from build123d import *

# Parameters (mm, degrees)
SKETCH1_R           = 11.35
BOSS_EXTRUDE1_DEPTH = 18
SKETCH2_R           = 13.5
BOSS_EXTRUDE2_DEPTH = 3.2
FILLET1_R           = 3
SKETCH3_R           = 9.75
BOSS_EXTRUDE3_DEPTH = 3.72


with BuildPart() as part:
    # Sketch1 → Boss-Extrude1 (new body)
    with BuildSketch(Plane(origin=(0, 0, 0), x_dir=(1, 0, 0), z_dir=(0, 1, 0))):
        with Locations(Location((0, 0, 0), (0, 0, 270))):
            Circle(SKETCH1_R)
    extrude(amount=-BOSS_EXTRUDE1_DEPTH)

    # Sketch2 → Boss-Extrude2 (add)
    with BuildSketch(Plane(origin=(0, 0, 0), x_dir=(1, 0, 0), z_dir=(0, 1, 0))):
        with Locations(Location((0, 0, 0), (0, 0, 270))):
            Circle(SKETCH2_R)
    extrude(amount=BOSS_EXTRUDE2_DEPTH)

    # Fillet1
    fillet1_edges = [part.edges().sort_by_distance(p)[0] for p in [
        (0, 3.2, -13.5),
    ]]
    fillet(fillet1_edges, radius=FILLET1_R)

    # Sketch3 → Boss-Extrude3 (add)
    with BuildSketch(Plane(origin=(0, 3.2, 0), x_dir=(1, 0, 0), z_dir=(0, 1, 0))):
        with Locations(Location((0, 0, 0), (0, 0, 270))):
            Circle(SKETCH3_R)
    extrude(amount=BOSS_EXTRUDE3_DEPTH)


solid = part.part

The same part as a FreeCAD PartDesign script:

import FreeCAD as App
import Part
import Sketcher
from FreeCAD import Vector
Q = App.Units.Quantity


def edges_at(feature, points):
    """Names of the edges that pass closest to the given points."""
    edges = feature.Shape.Edges
    near = lambda p: min(range(len(edges)), key=lambda i: edges[i].distToShape(Part.Vertex(*p))[0])
    return sorted({f"Edge{near(p) + 1}" for p in points})

doc = App.newDocument("Part")
body = doc.addObject("PartDesign::Body", "Body")

sketch1 = doc.addObject("Sketcher::SketchObject", "Sketch")
body.addObject(sketch1)
sketch1.AttachmentSupport = (doc.XZ_Plane, [""])
sketch1.MapMode = "FlatFace"
sketch1.addGeometry(Part.Circle(Vector(0, 0, 0), Vector(0, 0, 1), 11.35), False)
sketch1.addConstraint([
    Sketcher.Constraint("Coincident", 0, 3, -1, 1),
    Sketcher.Constraint("Diameter", 0, Q("22.7 mm")),
])
pad1 = doc.addObject("PartDesign::Pad", "Pad")
body.addObject(pad1)
pad1.Profile = sketch1
pad1.Length = 18

sketch2 = doc.addObject("Sketcher::SketchObject", "Sketch001")
body.addObject(sketch2)
sketch2.AttachmentSupport = (doc.XZ_Plane, [""])
sketch2.MapMode = "FlatFace"
sketch2.addGeometry(Part.Circle(Vector(0, 0, 0), Vector(0, 0, 1), 13.5), False)
sketch2.addConstraint([
    Sketcher.Constraint("Coincident", 0, 3, -1, 1),
    Sketcher.Constraint("Diameter", 0, Q("27 mm")),
])
pad2 = doc.addObject("PartDesign::Pad", "Pad001")
body.addObject(pad2)
pad2.Profile = sketch2
pad2.Length = 3.2
pad2.Reversed = True
doc.recompute()

fillet = doc.addObject("PartDesign::Fillet", "Fillet")
body.addObject(fillet)
fillet.Base = (pad2, edges_at(pad2, [(0, 3.2, -13.5)]))
fillet.Radius = 3

sketch3 = doc.addObject("Sketcher::SketchObject", "Sketch002")
body.addObject(sketch3)
sketch3.AttachmentSupport = (doc.XZ_Plane, [""])
sketch3.MapMode = "FlatFace"
sketch3.AttachmentOffset = App.Placement(Vector(0, 0, -3.2), App.Rotation())
sketch3.addGeometry(Part.Circle(Vector(0, 0, 0), Vector(0, 0, 1), 9.75), False)
sketch3.addConstraint([
    Sketcher.Constraint("Coincident", 0, 3, -1, 1),
    Sketcher.Constraint("Diameter", 0, Q("19.5 mm")),
])
pad3 = doc.addObject("PartDesign::Pad", "Pad002")
body.addObject(pad3)
pad3.Profile = sketch3
pad3.Length = 3.72
pad3.Reversed = True

doc.recompute()
